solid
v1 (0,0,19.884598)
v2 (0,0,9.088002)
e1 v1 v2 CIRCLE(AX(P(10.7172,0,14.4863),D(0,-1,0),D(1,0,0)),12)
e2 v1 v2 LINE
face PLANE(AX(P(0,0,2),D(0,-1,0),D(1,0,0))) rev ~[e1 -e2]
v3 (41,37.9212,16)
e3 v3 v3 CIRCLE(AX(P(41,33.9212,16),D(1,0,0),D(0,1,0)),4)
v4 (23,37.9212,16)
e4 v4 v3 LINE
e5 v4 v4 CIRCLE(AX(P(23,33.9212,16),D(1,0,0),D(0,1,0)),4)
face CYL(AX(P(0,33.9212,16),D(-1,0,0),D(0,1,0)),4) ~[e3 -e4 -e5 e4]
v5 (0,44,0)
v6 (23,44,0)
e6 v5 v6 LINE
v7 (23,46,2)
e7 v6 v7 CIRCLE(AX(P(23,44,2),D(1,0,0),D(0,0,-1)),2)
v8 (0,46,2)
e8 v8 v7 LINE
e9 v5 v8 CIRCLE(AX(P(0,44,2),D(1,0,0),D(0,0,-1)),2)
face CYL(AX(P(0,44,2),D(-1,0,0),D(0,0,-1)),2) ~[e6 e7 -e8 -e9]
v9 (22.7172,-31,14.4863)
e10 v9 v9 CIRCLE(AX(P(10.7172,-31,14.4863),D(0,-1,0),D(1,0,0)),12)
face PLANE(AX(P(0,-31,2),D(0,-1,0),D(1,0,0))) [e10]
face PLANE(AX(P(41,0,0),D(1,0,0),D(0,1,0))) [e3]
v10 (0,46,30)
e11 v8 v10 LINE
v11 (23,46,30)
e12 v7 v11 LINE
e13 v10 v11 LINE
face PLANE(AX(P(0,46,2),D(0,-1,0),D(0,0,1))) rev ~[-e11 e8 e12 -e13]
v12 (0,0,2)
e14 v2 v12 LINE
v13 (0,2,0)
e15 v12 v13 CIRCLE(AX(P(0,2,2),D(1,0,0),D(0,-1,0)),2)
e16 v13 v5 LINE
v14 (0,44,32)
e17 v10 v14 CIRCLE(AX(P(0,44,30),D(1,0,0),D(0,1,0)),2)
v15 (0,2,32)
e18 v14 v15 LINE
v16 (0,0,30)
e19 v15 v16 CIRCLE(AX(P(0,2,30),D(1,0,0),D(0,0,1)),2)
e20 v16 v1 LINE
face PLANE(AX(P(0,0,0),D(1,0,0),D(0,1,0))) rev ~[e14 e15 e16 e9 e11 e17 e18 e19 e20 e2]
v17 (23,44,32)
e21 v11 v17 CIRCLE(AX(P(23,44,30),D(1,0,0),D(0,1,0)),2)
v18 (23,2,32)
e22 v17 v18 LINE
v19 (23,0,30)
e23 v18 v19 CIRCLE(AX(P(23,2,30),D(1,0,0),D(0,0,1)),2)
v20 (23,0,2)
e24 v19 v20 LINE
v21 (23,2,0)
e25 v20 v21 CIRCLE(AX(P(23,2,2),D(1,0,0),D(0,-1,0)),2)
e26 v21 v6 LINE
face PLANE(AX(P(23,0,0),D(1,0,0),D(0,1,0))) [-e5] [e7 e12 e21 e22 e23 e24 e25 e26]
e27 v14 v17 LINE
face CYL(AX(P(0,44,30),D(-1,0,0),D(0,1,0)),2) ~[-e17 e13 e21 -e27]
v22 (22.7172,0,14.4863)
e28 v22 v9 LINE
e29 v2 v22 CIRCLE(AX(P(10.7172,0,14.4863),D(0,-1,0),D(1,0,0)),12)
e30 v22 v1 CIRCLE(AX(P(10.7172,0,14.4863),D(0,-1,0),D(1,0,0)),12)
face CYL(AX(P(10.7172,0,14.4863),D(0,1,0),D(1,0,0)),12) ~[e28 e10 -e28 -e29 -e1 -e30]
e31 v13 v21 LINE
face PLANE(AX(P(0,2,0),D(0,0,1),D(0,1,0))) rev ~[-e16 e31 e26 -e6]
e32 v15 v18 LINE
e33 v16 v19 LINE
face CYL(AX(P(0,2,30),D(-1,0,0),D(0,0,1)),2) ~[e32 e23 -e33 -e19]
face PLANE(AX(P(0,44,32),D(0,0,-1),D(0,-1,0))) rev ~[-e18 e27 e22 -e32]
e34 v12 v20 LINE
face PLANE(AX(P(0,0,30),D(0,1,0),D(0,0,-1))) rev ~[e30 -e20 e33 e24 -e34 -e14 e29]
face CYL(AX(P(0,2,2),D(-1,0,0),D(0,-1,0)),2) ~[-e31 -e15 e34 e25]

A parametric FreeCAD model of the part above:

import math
import FreeCAD as App
import Part
import Sketcher

V = App.Vector
Q = App.Units.Quantity

doc = App.newDocument("Part")
params = doc.addObject("Spreadsheet::Sheet", "Params")
for row, (alias, value) in enumerate([
    ("sketch1_diameter", "8 mm"),
    ("sketch1_radius", "2 mm"),
    ("sketch1_width", "42 mm"),
    ("sketch1_height", "28 mm"),
    ("pad1_length", "23 mm"),
    ("sketch2_diameter", "8 mm"),
    ("pad2_length", "41 mm"),
    ("sketch3_diameter", "24 mm"),
    ("pad3_length", "31 mm"),
], start=1):
    params.set(f"A{row}", alias)
    params.set(f"B{row}", "=" + value)
    params.setAlias(f"B{row}", alias)

body = doc.addObject("PartDesign::Body", "Body")

# Sketch on YZ plane
sketch1 = body.newObject("Sketcher::SketchObject", "Sketch")
sketch1.AttachmentSupport = (doc.getObject("YZ_Plane"), [""])
sketch1.MapMode = "FlatFace"
sketch1.addGeometry(Part.ArcOfCircle(Part.Circle(V(2, 2, 0), V(0, 0, 1), 2), math.radians(180), math.radians(270)), False)
sketch1.addGeometry(Part.LineSegment(V(2, 0, 0), V(44, 0, 0)), False)
sketch1.addGeometry(Part.ArcOfCircle(Part.Circle(V(44, 2, 0), V(0, 0, 1), 2), math.radians(-90), math.radians(0)), False)
sketch1.addGeometry(Part.LineSegment(V(46, 2, 0), V(46, 30, 0)), False)
sketch1.addGeometry(Part.ArcOfCircle(Part.Circle(V(44, 30, 0), V(0, 0, 1), 2), math.radians(0), math.radians(90)), False)
sketch1.addGeometry(Part.LineSegment(V(44, 32, 0), V(2, 32, 0)), False)
sketch1.addGeometry(Part.ArcOfCircle(Part.Circle(V(2, 30, 0), V(0, 0, 1), 2), math.radians(90), math.radians(180)), False)
sketch1.addGeometry(Part.LineSegment(V(0, 30, 0), V(0, 2, 0)), False)
sketch1.addGeometry(Part.Circle(V(33.9, 16, 0), V(0, 0, 1), 4), False)
sketch1.addConstraint(Sketcher.Constraint("Tangent", 0, 2, 1, 1))
sketch1.addConstraint(Sketcher.Constraint("Tangent", 1, 2, 2, 1))
sketch1.addConstraint(Sketcher.Constraint("Tangent", 2, 2, 3, 1))
sketch1.addConstraint(Sketcher.Constraint("Tangent", 3, 2, 4, 1))
sketch1.addConstraint(Sketcher.Constraint("Tangent", 4, 2, 5, 1))
sketch1.addConstraint(Sketcher.Constraint("Tangent", 5, 2, 6, 1))
sketch1.addConstraint(Sketcher.Constraint("Tangent", 6, 2, 7, 1))
sketch1.addConstraint(Sketcher.Constraint("Tangent", 7, 2, 0, 1))
sketch1.addConstraint(Sketcher.Constraint("Horizontal", 1))
sketch1.addConstraint(Sketcher.Constraint("Vertical", 3))
sketch1.addConstraint(Sketcher.Constraint("Horizontal", 5))
sketch1.addConstraint(Sketcher.Constraint("Vertical", 7))
sketch1.addConstraint(Sketcher.Constraint("Equal", 0, 2))
sketch1.addConstraint(Sketcher.Constraint("Equal", 2, 4))
sketch1.addConstraint(Sketcher.Constraint("Equal", 4, 6))
sketch1.addConstraint(Sketcher.Constraint("PointOnObject", 0, 2, -1))
sketch1.addConstraint(Sketcher.Constraint("PointOnObject", 6, 2, -2))
sketch1.addConstraint(Sketcher.Constraint("Diameter", 8, Q("8 mm")))
sketch1.addConstraint(Sketcher.Constraint("Radius", 0, Q("2 mm")))
sketch1.addConstraint(Sketcher.Constraint("DistanceX", 1, 1, 1, 2, Q("42 mm")))
sketch1.addConstraint(Sketcher.Constraint("DistanceY", 3, 1, 3, 2, Q("28 mm")))
sketch1.addConstraint(Sketcher.Constraint("DistanceY", -1, 1, 8, 3, Q("16 mm")))
sketch1.addConstraint(Sketcher.Constraint("DistanceX", -1, 1, 8, 3, Q("33.9212 mm")))
sketch1.setExpression("Constraints[17]", "Params.sketch1_diameter")
sketch1.setExpression("Constraints[18]", "Params.sketch1_radius")
sketch1.setExpression("Constraints[19]", "Params.sketch1_width")
sketch1.setExpression("Constraints[20]", "Params.sketch1_height")
pad1 = body.newObject("PartDesign::Pad", "Pad")
pad1.Profile = sketch1
pad1.setExpression("Length", "Params.pad1_length")

# Sketch on YZ plane
sketch2 = body.newObject("Sketcher::SketchObject", "Sketch001")
sketch2.AttachmentSupport = (doc.getObject("YZ_Plane"), [""])
sketch2.MapMode = "FlatFace"
sketch2.addGeometry(Part.Circle(V(33.9, 16, 0), V(0, 0, 1), 4), False)
sketch2.addConstraint(Sketcher.Constraint("Diameter", 0, Q("8 mm")))
sketch2.addConstraint(Sketcher.Constraint("DistanceY", -1, 1, 0, 3, Q("16 mm")))
sketch2.addConstraint(Sketcher.Constraint("DistanceX", -1, 1, 0, 3, Q("33.9212 mm")))
sketch2.setExpression("Constraints[0]", "Params.sketch2_diameter")
pad2 = body.newObject("PartDesign::Pad", "Pad001")
pad2.Profile = sketch2
pad2.setExpression("Length", "Params.pad2_length")

# Sketch on XZ plane
sketch3 = body.newObject("Sketcher::SketchObject", "Sketch002")
sketch3.AttachmentSupport = (doc.getObject("XZ_Plane"), [""])
sketch3.MapMode = "FlatFace"
sketch3.addGeometry(Part.Circle(V(11, 14, 0), V(0, 0, 1), 12), False)
sketch3.addConstraint(Sketcher.Constraint("Diameter", 0, Q("24 mm")))
sketch3.addConstraint(Sketcher.Constraint("DistanceX", -1, 1, 0, 3, Q("10.7172 mm")))
sketch3.addConstraint(Sketcher.Constraint("DistanceY", -1, 1, 0, 3, Q("14.4863 mm")))
sketch3.setExpression("Constraints[0]", "Params.sketch3_diameter")
pad3 = body.newObject("PartDesign::Pad", "Pad002")
pad3.Profile = sketch3
pad3.setExpression("Length", "Params.pad3_length")

doc.recompute()
